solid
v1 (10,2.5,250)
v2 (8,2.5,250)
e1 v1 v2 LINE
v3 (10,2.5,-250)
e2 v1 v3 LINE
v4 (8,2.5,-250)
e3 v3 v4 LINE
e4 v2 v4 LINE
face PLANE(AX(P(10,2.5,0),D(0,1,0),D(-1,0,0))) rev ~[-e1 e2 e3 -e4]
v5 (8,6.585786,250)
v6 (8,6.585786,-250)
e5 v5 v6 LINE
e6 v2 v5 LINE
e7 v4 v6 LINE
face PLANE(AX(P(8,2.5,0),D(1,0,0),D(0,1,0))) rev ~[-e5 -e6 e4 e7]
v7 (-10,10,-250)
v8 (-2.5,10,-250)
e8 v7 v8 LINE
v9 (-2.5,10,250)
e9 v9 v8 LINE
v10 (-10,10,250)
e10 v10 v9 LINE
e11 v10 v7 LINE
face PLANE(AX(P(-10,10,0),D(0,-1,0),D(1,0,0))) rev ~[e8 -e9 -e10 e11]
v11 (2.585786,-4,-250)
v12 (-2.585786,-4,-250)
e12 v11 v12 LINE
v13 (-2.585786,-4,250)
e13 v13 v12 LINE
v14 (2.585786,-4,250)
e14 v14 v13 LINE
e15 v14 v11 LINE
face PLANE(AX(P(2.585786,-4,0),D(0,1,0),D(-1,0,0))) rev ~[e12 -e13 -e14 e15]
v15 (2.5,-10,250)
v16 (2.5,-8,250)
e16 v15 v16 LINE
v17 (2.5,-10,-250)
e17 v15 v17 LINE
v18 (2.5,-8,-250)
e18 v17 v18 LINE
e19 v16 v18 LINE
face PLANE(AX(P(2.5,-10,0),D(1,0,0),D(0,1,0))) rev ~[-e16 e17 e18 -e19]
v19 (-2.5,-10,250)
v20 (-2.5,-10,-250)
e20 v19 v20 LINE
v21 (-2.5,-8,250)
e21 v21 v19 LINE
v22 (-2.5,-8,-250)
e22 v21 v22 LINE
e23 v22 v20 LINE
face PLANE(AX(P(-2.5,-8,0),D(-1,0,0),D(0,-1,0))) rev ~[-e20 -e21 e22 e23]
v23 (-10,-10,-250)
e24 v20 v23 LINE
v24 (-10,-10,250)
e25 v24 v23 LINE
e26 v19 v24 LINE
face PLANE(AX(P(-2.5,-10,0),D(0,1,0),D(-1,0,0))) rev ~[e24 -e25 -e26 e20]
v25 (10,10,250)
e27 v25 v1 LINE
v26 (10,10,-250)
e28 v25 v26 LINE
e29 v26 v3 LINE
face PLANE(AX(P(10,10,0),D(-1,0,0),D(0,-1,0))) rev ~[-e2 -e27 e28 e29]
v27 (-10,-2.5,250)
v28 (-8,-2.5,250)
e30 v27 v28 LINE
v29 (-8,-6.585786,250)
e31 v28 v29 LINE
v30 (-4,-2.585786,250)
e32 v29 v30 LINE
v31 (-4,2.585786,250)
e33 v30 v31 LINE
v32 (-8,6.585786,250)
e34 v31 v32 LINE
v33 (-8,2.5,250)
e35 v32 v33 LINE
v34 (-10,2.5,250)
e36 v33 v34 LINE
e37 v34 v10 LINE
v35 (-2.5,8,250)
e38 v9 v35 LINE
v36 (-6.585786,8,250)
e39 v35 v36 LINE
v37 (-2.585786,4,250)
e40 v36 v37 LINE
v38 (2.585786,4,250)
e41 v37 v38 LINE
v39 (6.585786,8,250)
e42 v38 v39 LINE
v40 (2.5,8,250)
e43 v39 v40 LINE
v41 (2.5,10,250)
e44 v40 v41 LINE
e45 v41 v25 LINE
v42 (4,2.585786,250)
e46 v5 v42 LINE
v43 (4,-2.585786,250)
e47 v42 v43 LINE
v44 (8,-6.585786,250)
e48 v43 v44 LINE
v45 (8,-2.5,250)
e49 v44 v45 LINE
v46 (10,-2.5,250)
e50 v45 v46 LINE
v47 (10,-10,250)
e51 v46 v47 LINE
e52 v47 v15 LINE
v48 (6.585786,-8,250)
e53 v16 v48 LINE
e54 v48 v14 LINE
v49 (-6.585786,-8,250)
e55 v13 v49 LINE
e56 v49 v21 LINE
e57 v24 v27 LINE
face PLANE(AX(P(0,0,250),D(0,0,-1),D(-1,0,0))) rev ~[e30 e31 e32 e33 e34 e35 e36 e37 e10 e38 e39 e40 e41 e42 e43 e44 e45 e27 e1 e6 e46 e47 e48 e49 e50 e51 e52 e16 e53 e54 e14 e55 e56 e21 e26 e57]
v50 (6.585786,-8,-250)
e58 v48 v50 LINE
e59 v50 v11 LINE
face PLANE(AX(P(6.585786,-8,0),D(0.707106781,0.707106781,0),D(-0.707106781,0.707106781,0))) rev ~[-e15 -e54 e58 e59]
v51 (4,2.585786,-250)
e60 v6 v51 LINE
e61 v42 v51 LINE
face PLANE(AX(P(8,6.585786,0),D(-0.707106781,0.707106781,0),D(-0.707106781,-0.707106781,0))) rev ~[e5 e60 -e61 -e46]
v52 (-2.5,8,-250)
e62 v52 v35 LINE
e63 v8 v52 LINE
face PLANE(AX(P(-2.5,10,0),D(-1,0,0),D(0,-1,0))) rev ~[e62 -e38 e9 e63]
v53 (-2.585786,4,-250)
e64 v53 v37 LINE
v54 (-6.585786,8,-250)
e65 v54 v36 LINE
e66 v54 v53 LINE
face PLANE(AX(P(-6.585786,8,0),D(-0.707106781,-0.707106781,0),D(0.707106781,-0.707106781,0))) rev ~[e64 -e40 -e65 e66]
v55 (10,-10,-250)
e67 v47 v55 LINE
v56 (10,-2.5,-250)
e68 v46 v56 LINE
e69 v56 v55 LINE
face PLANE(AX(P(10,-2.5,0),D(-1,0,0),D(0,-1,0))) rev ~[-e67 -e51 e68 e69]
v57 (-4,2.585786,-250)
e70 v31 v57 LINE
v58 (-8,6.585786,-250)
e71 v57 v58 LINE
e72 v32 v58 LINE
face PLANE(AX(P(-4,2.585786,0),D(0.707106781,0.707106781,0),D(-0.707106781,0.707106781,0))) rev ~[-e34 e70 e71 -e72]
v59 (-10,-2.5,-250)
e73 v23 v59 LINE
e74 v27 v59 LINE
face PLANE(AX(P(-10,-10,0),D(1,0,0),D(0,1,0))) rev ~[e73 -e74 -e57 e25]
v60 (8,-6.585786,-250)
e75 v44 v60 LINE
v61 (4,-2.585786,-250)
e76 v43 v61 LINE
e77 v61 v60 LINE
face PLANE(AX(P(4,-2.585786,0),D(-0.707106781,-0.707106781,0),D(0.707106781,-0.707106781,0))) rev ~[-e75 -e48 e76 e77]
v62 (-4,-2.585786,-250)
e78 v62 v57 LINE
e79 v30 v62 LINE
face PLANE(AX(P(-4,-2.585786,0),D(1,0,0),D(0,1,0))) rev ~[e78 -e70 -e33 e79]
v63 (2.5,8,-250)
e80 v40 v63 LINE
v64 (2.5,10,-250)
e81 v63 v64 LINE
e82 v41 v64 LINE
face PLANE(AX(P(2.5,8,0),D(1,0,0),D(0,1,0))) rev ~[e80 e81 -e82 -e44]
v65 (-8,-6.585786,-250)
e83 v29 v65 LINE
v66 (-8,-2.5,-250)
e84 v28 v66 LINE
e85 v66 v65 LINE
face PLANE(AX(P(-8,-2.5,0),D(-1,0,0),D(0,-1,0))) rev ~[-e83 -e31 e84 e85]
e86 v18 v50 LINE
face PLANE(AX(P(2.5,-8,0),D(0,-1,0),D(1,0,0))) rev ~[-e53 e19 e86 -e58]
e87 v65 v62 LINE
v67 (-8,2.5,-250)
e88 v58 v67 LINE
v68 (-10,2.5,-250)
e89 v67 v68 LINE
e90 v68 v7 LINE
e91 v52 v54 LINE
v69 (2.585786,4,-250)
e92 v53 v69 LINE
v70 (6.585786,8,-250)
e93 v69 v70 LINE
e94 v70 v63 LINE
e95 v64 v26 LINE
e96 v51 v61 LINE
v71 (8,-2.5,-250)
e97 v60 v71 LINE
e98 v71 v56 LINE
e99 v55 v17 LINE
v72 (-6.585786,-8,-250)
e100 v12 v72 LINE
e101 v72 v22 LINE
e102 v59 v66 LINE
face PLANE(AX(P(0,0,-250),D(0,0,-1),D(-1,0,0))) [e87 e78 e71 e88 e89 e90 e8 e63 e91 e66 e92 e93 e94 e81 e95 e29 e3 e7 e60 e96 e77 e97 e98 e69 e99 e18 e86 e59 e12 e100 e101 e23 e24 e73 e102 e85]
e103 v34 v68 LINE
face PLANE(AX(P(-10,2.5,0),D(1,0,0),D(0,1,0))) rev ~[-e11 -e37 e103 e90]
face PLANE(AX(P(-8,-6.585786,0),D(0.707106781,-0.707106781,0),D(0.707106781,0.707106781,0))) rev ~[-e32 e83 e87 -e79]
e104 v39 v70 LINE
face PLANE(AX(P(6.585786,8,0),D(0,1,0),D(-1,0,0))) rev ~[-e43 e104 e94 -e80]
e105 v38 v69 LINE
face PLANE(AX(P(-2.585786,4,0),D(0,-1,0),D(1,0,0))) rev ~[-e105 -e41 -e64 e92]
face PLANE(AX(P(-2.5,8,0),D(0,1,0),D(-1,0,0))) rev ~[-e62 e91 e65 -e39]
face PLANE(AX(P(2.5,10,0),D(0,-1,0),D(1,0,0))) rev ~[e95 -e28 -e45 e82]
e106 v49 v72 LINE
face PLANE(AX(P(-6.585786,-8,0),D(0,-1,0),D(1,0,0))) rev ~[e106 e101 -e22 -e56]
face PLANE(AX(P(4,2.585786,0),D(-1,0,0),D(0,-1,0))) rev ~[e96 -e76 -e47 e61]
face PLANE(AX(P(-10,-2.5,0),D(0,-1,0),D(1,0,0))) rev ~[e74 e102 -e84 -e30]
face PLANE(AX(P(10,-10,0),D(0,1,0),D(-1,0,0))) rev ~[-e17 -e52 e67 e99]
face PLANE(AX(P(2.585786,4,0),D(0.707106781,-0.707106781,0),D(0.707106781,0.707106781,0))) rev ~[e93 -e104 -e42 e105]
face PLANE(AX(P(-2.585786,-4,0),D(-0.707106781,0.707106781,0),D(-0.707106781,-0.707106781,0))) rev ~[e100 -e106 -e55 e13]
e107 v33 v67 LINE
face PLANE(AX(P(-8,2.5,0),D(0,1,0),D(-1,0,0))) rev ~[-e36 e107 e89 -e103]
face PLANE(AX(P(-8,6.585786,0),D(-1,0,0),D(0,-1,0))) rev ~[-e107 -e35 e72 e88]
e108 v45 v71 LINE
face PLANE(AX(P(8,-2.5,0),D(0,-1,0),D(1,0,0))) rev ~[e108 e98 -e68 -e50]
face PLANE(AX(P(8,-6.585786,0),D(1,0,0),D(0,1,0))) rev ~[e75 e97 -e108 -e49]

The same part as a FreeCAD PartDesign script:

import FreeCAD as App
import Part
import Sketcher
Q = App.Units.Quantity

doc = App.newDocument("Part")
params = doc.addObject("Spreadsheet::Sheet", "Params")
for row, (alias, value) in enumerate([
    ("sketch1_width", "2 mm"),
    ("sketch1_width2", "7.5 mm"),
    ("pad1_length", "500 mm"),
], start=1):
    params.set(f"A{row}", alias)
    params.set(f"B{row}", "=" + value)
    params.setAlias(f"B{row}", alias)

body = doc.addObject("PartDesign::Body", "Body")

# Sketch on XY plane
sketch1 = doc.addObject("Sketcher::SketchObject", "Sketch")
body.addObject(sketch1)
sketch1.AttachmentSupport = (doc.XY_Plane, [""])
sketch1.MapMode = "FlatFace"
sketch1.addGeometry([
    Part.LineSegment(App.Vector(2.6, 4, 0), App.Vector(-2.6, 4, 0)),  # 0
    Part.LineSegment(App.Vector(-2.6, 4, 0), App.Vector(-6.6, 8, 0)),  # 1
    Part.LineSegment(App.Vector(-6.6, 8, 0), App.Vector(-2.5, 8, 0)),  # 2
    Part.LineSegment(App.Vector(-2.5, 8, 0), App.Vector(-2.5, 10, 0)),  # 3
    Part.LineSegment(App.Vector(-2.5, 10, 0), App.Vector(-10, 10, 0)),  # 4
    Part.LineSegment(App.Vector(-10, 10, 0), App.Vector(-10, 2.5, 0)),  # 5
    Part.LineSegment(App.Vector(-10, 2.5, 0), App.Vector(-8, 2.5, 0)),  # 6
    Part.LineSegment(App.Vector(-8, 2.5, 0), App.Vector(-8, 6.6, 0)),  # 7
    Part.LineSegment(App.Vector(-8, 6.6, 0), App.Vector(-4, 2.6, 0)),  # 8
    Part.LineSegment(App.Vector(-4, 2.6, 0), App.Vector(-4, -2.6, 0)),  # 9
    Part.LineSegment(App.Vector(-4, -2.6, 0), App.Vector(-8, -6.6, 0)),  # 10
    Part.LineSegment(App.Vector(-8, -6.6, 0), App.Vector(-8, -2.5, 0)),  # 11
    Part.LineSegment(App.Vector(-8, -2.5, 0), App.Vector(-10, -2.5, 0)),  # 12
    Part.LineSegment(App.Vector(-10, -2.5, 0), App.Vector(-10, -10, 0)),  # 13
    Part.LineSegment(App.Vector(-10, -10, 0), App.Vector(-2.5, -10, 0)),  # 14
    Part.LineSegment(App.Vector(-2.5, -10, 0), App.Vector(-2.5, -8, 0)),  # 15
    Part.LineSegment(App.Vector(-2.5, -8, 0), App.Vector(-6.6, -8, 0)),  # 16
    Part.LineSegment(App.Vector(-6.6, -8, 0), App.Vector(-2.6, -4, 0)),  # 17
    Part.LineSegment(App.Vector(-2.6, -4, 0), App.Vector(2.6, -4, 0)),  # 18
    Part.LineSegment(App.Vector(2.6, -4, 0), App.Vector(6.6, -8, 0)),  # 19
    Part.LineSegment(App.Vector(6.6, -8, 0), App.Vector(2.5, -8, 0)),  # 20
    Part.LineSegment(App.Vector(2.5, -8, 0), App.Vector(2.5, -10, 0)),  # 21
    Part.LineSegment(App.Vector(2.5, -10, 0), App.Vector(10, -10, 0)),  # 22
    Part.LineSegment(App.Vector(10, -10, 0), App.Vector(10, -2.5, 0)),  # 23
    Part.LineSegment(App.Vector(10, -2.5, 0), App.Vector(8, -2.5, 0)),  # 24
    Part.LineSegment(App.Vector(8, -2.5, 0), App.Vector(8, -6.6, 0)),  # 25
    Part.LineSegment(App.Vector(8, -6.6, 0), App.Vector(4, -2.6, 0)),  # 26
    Part.LineSegment(App.Vector(4, -2.6, 0), App.Vector(4, 2.6, 0)),  # 27
    Part.LineSegment(App.Vector(4, 2.6, 0), App.Vector(8, 6.6, 0)),  # 28
    Part.LineSegment(App.Vector(8, 6.6, 0), App.Vector(8, 2.5, 0)),  # 29
    Part.LineSegment(App.Vector(8, 2.5, 0), App.Vector(10, 2.5, 0)),  # 30
    Part.LineSegment(App.Vector(10, 2.5, 0), App.Vector(10, 10, 0)),  # 31
    Part.LineSegment(App.Vector(10, 10, 0), App.Vector(2.5, 10, 0)),  # 32
    Part.LineSegment(App.Vector(2.5, 10, 0), App.Vector(2.5, 8, 0)),  # 33
    Part.LineSegment(App.Vector(2.5, 8, 0), App.Vector(6.6, 8, 0)),  # 34
    Part.LineSegment(App.Vector(6.6, 8, 0), App.Vector(2.6, 4, 0)),  # 35
], False)
sketch1.addConstraint([
    Sketcher.Constraint("Coincident", 0, 2, 1, 1),
    Sketcher.Constraint("Coincident", 1, 2, 2, 1),
    Sketcher.Constraint("Coincident", 2, 2, 3, 1),
    Sketcher.Constraint("Coincident", 3, 2, 4, 1),
    Sketcher.Constraint("Coincident", 4, 2, 5, 1),
    Sketcher.Constraint("Coincident", 5, 2, 6, 1),
    Sketcher.Constraint("Coincident", 6, 2, 7, 1),
    Sketcher.Constraint("Coincident", 7, 2, 8, 1),
    Sketcher.Constraint("Coincident", 8, 2, 9, 1),
    Sketcher.Constraint("Coincident", 9, 2, 10, 1),
    Sketcher.Constraint("Coincident", 10, 2, 11, 1),
    Sketcher.Constraint("Coincident", 11, 2, 12, 1),
    Sketcher.Constraint("Coincident", 12, 2, 13, 1),
    Sketcher.Constraint("Coincident", 13, 2, 14, 1),
    Sketcher.Constraint("Coincident", 14, 2, 15, 1),
    Sketcher.Constraint("Coincident", 15, 2, 16, 1),
    Sketcher.Constraint("Coincident", 16, 2, 17, 1),
    Sketcher.Constraint("Coincident", 17, 2, 18, 1),
    Sketcher.Constraint("Coincident", 18, 2, 19, 1),
    Sketcher.Constraint("Coincident", 19, 2, 20, 1),
    Sketcher.Constraint("Coincident", 20, 2, 21, 1),
    Sketcher.Constraint("Coincident", 21, 2, 22, 1),
    Sketcher.Constraint("Coincident", 22, 2, 23, 1),
    Sketcher.Constraint("Coincident", 23, 2, 24, 1),
    Sketcher.Constraint("Coincident", 24, 2, 25, 1),
    Sketcher.Constraint("Coincident", 25, 2, 26, 1),
    Sketcher.Constraint("Coincident", 26, 2, 27, 1),
    Sketcher.Constraint("Coincident", 27, 2, 28, 1),
    Sketcher.Constraint("Coincident", 28, 2, 29, 1),
    Sketcher.Constraint("Coincident", 29, 2, 30, 1),
    Sketcher.Constraint("Coincident", 30, 2, 31, 1),
    Sketcher.Constraint("Coincident", 31, 2, 32, 1),
    Sketcher.Constraint("Coincident", 32, 2, 33, 1),
    Sketcher.Constraint("Coincident", 33, 2, 34, 1),
    Sketcher.Constraint("Coincident", 34, 2, 35, 1),
    Sketcher.Constraint("Coincident", 35, 2, 0, 1),
    Sketcher.Constraint("Horizontal", 0),
    Sketcher.Constraint("Horizontal", 2),
    Sketcher.Constraint("Vertical", 3),
    Sketcher.Constraint("Horizontal", 4),
    Sketcher.Constraint("Vertical", 5),
    Sketcher.Constraint("Horizontal", 6),
    Sketcher.Constraint("Vertical", 7),
    Sketcher.Constraint("Vertical", 9),
    Sketcher.Constraint("Vertical", 11),
    Sketcher.Constraint("Horizontal", 12),
    Sketcher.Constraint("Vertical", 13),
    Sketcher.Constraint("Horizontal", 14),
    Sketcher.Constraint("Vertical", 15),
    Sketcher.Constraint("Horizontal", 16),
    Sketcher.Constraint("Horizontal", 18),
    Sketcher.Constraint("Horizontal", 20),
    Sketcher.Constraint("Vertical", 21),
    Sketcher.Constraint("Horizontal", 22),
    Sketcher.Constraint("Vertical", 23),
    Sketcher.Constraint("Horizontal", 24),
    Sketcher.Constraint("Vertical", 25),
    Sketcher.Constraint("Vertical", 27),
    Sketcher.Constraint("Vertical", 29),
    Sketcher.Constraint("Horizontal", 30),
    Sketcher.Constraint("Vertical", 31),
    Sketcher.Constraint("Horizontal", 32),
    Sketcher.Constraint("Vertical", 33),
    Sketcher.Constraint("Horizontal", 34),
    Sketcher.Constraint("Symmetric", 0, 2, 18, 2, -1, 1),
    Sketcher.Constraint("Symmetric", 1, 2, 19, 2, -1, 1),
    Sketcher.Constraint("Symmetric", 3, 2, 21, 2, -1, 1),
    Sketcher.Constraint("Symmetric", 5, 2, 23, 2, -1, 1),
    Sketcher.Constraint("Symmetric", 7, 2, 25, 2, -1, 1),
    Sketcher.Constraint("Symmetric", 8, 2, 26, 2, -1, 1),
    Sketcher.Constraint("Symmetric", 10, 2, 28, 2, -1, 1),
    Sketcher.Constraint("Symmetric", 12, 2, 30, 2, -1, 1),
    Sketcher.Constraint("Symmetric", 14, 2, 32, 2, -1, 1),
    Sketcher.Constraint("Symmetric", 16, 2, 34, 2, -1, 1),
    Sketcher.Constraint("Symmetric", 16, 2, 19, 2, -2),
    Sketcher.Constraint("Symmetric", 14, 2, 21, 2, -2),
    Sketcher.Constraint("Symmetric", 12, 2, 23, 2, -2),
    Sketcher.Constraint("Symmetric", 10, 2, 25, 2, -2),
    Sketcher.Constraint("Parallel", 1, 8),
    Sketcher.Constraint("Perpendicular", 8, 10),
    Sketcher.Constraint("Parallel", 10, 17),
    Sketcher.Constraint("Perpendicular", 26, 28),
    Sketcher.Constraint("Parallel", 28, 35),
    Sketcher.Constraint("Horizontal", 9, 2, 26, 2),
    Sketcher.Constraint("Equal", 30, 3),
    Sketcher.Constraint("Equal", 32, 5),
    Sketcher.Constraint("Equal", 34, 7),
    Sketcher.Constraint("Equal", 18, 9),
    Sketcher.Constraint("Equal", 1, 8),
    Sketcher.Constraint("DistanceX", 6, 1, 6, 2, Q("2 mm")),
    Sketcher.Constraint("DistanceX", 4, 2, 4, 1, Q("7.5 mm")),
    Sketcher.Constraint("DistanceY", -1, 1, 0, 2, Q("4 mm")),
    Sketcher.Constraint("DistanceY", -1, 1, 1, 2, Q("8 mm")),
    Sketcher.Constraint("DistanceX", 0, 2, 0, 1, Q("5.171573 mm")),
])
sketch1.setExpression("Constraints[89]", "Params.sketch1_width")
sketch1.setExpression("Constraints[90]", "Params.sketch1_width2")
pad1 = doc.addObject("PartDesign::Pad", "Pad")
body.addObject(pad1)
pad1.Profile = sketch1
pad1.setExpression("Length", "Params.pad1_length")
pad1.Midplane = True

doc.recompute()
